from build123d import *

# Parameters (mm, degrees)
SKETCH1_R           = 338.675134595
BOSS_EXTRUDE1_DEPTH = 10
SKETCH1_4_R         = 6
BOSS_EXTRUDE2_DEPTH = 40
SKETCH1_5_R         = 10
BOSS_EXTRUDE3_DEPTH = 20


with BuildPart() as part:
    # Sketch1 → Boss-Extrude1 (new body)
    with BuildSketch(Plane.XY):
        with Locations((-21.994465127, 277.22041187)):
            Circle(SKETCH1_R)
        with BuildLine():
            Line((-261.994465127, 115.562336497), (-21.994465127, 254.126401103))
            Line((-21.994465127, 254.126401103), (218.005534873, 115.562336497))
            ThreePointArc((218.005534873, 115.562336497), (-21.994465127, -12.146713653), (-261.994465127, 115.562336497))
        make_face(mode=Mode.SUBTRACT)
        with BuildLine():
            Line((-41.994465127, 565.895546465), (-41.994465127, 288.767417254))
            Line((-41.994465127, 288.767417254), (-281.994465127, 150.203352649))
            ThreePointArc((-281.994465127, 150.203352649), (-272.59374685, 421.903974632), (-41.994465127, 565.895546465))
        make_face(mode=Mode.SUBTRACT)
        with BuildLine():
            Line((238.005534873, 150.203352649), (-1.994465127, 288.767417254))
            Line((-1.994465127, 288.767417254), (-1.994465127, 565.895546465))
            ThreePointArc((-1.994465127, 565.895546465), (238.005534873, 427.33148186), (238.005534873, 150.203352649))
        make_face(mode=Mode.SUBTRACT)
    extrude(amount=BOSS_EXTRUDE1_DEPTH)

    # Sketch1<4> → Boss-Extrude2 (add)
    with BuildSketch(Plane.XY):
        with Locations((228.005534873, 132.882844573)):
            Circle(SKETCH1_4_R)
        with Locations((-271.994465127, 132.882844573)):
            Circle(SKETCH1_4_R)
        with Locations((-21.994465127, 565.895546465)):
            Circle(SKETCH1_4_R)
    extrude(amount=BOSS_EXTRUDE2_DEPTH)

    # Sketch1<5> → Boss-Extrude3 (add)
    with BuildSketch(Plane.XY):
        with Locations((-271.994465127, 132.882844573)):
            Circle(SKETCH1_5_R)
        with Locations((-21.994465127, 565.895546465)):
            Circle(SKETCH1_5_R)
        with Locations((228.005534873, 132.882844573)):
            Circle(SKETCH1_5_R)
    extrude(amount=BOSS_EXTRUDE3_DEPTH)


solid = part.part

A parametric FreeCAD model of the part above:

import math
import FreeCAD as App
import Part
import Sketcher
from FreeCAD import Vector
Q = App.Units.Quantity

doc = App.newDocument("Part")
body = doc.addObject("PartDesign::Body", "Body")

# Sketch on XY plane
sketch1 = doc.addObject("Sketcher::SketchObject", "Sketch")
body.addObject(sketch1)
sketch1.AttachmentSupport = (doc.XY_Plane, [""])
sketch1.MapMode = "FlatFace"
sketch1.addGeometry(Part.Circle(Vector(-21.994465, 277.220412, 0), Vector(0, 0, 1), 338.675135), False)
sketch1.addGeometry(Part.ArcOfCircle(Part.Circle(Vector(-21.994465, 277.220412, 0), Vector(0, 0, 1), 289.367126), math.radians(-146.036765), math.radians(-33.963235)), False)
sketch1.addGeometry(Part.LineSegment(Vector(-261.994465, 115.562336, 0), Vector(-21.994465, 254.126401, 0)), False)
sketch1.addGeometry(Part.LineSegment(Vector(-21.994465, 254.126401, 0), Vector(218.005535, 115.562336, 0)), False)
sketch1.addGeometry(Part.ArcOfCircle(Part.Circle(Vector(-21.994465, 277.220412, 0), Vector(0, 0, 1), 289.367126), math.radians(93.963235), math.radians(206.036765)), False)
sketch1.addGeometry(Part.LineSegment(Vector(-41.994465, 565.895546, 0), Vector(-41.994465, 288.767417, 0)), False)
sketch1.addGeometry(Part.LineSegment(Vector(-41.994465, 288.767417, 0), Vector(-281.994465, 150.203353, 0)), False)
sketch1.addGeometry(Part.ArcOfCircle(Part.Circle(Vector(-1.994465, 288.767417, 0), Vector(0, 0, 1), 277.128129), math.radians(-30), math.radians(90)), False)
sketch1.addGeometry(Part.LineSegment(Vector(238.005535, 150.203353, 0), Vector(-1.994465, 288.767417, 0)), False)
sketch1.addGeometry(Part.LineSegment(Vector(-1.994465, 288.767417, 0), Vector(-1.994465, 565.895546, 0)), False)
sketch1.addConstraint(Sketcher.Constraint("Coincident", 1, 1, 2, 1))
sketch1.addConstraint(Sketcher.Constraint("Coincident", 2, 2, 3, 1))
sketch1.addConstraint(Sketcher.Constraint("Coincident", 3, 2, 1, 2))
sketch1.addConstraint(Sketcher.Constraint("Coincident", 4, 1, 5, 1))
sketch1.addConstraint(Sketcher.Constraint("Coincident", 5, 2, 6, 1))
sketch1.addConstraint(Sketcher.Constraint("Coincident", 6, 2, 4, 2))
sketch1.addConstraint(Sketcher.Constraint("Coincident", 7, 1, 8, 1))
sketch1.addConstraint(Sketcher.Constraint("Coincident", 8, 2, 9, 1))
sketch1.addConstraint(Sketcher.Constraint("Coincident", 9, 2, 7, 2))
sketch1.addConstraint(Sketcher.Constraint("Vertical", 5))
sketch1.addConstraint(Sketcher.Constraint("Vertical", 9))
sketch1.addConstraint(Sketcher.Constraint("Coincident", 1, 3, 0, 3))
sketch1.addConstraint(Sketcher.Constraint("Coincident", 4, 3, 0, 3))
sketch1.addConstraint(Sketcher.Constraint("Coincident", 8, 2, 7, 3))
sketch1.addConstraint(Sketcher.Constraint("Equal", 1, 4))
sketch1.addConstraint(Sketcher.Constraint("Parallel", 2, 6))
sketch1.addConstraint(Sketcher.Constraint("Parallel", 3, 8))
sketch1.addConstraint(Sketcher.Constraint("Horizontal", 1, 1, 3, 2))
sketch1.addConstraint(Sketcher.Constraint("Horizontal", 7, 3, 5, 2))
sketch1.addConstraint(Sketcher.Constraint("Horizontal", 6, 2, 7, 1))
sketch1.addConstraint(Sketcher.Constraint("Horizontal", 4, 1, 9, 2))
sketch1.addConstraint(Sketcher.Constraint("Vertical", 4, 3, 2, 2))
sketch1.addConstraint(Sketcher.Constraint("Equal", 3, 6))
sketch1.addConstraint(Sketcher.Constraint("Angle", 2, Q("30 deg")))
sketch1.addConstraint(Sketcher.Constraint("DistanceX", 0, 3, 7, 3, Q("20 mm")))
sketch1.addConstraint(Sketcher.Constraint("DistanceX", 2, 2, 3, 2, Q("240 mm")))
sketch1.addConstraint(Sketcher.Constraint("DistanceX", 5, 2, 4, 3, Q("20 mm")))
sketch1.addConstraint(Sketcher.Constraint("Diameter", 0, Q("677.350269 mm")))
sketch1.addConstraint(Sketcher.Constraint("DistanceY", -1, 1, 2, 2, Q("254.126401 mm")))
sketch1.addConstraint(Sketcher.Constraint("DistanceX", 0, 3, -1, 1, Q("21.994465 mm")))
pad1 = doc.addObject("PartDesign::Pad", "Pad")
body.addObject(pad1)
pad1.Profile = sketch1
pad1.Length = 10

# Sketch on XY plane
sketch2 = doc.addObject("Sketcher::SketchObject", "Sketch001")
body.addObject(sketch2)
sketch2.AttachmentSupport = (doc.XY_Plane, [""])
sketch2.MapMode = "FlatFace"
sketch2.addGeometry(Part.Circle(Vector(228.005535, 132.882845, 0), Vector(0, 0, 1), 6), False)
sketch2.addGeometry(Part.Circle(Vector(-271.994465, 132.882845, 0), Vector(0, 0, 1), 6), False)
sketch2.addGeometry(Part.Circle(Vector(-21.994465, 565.895546, 0), Vector(0, 0, 1), 6), False)
sketch2.addConstraint(Sketcher.Constraint("Equal", 0, 1))
sketch2.addConstraint(Sketcher.Constraint("Equal", 1, 2))
sketch2.addConstraint(Sketcher.Constraint("Horizontal", 0, 3, 1, 3))
sketch2.addConstraint(Sketcher.Constraint("Diameter", 0, Q("12 mm")))
sketch2.addConstraint(Sketcher.Constraint("DistanceX", 1, 3, 0, 3, Q("500 mm")))
sketch2.addConstraint(Sketcher.Constraint("DistanceX", 2, 3, 0, 3, Q("250 mm")))
sketch2.addConstraint(Sketcher.Constraint("DistanceY", 0, 3, 2, 3, Q("433.012702 mm")))
sketch2.addConstraint(Sketcher.Constraint("DistanceX", -1, 1, 0, 3, Q("228.005535 mm")))
sketch2.addConstraint(Sketcher.Constraint("DistanceY", -1, 1, 0, 3, Q("132.882845 mm")))
pad2 = doc.addObject("PartDesign::Pad", "Pad001")
body.addObject(pad2)
pad2.Profile = sketch2
pad2.Length = 40

# Sketch on XY plane
sketch3 = doc.addObject("Sketcher::SketchObject", "Sketch002")
body.addObject(sketch3)
sketch3.AttachmentSupport = (doc.XY_Plane, [""])
sketch3.MapMode = "FlatFace"
sketch3.addGeometry(Part.Circle(Vector(-271.994465, 132.882845, 0), Vector(0, 0, 1), 10), False)
sketch3.addGeometry(Part.Circle(Vector(-21.994465, 565.895546, 0), Vector(0, 0, 1), 10), False)
sketch3.addGeometry(Part.Circle(Vector(228.005535, 132.882845, 0), Vector(0, 0, 1), 10), False)
sketch3.addConstraint(Sketcher.Constraint("Equal", 0, 1))
sketch3.addConstraint(Sketcher.Constraint("Equal", 1, 2))
sketch3.addConstraint(Sketcher.Constraint("Horizontal", 0, 3, 2, 3))
sketch3.addConstraint(Sketcher.Constraint("Diameter", 0, Q("20 mm")))
sketch3.addConstraint(Sketcher.Constraint("DistanceX", 0, 3, 1, 3, Q("250 mm")))
sketch3.addConstraint(Sketcher.Constraint("DistanceX", 1, 3, 2, 3, Q("250 mm")))
sketch3.addConstraint(Sketcher.Constraint("DistanceY", 0, 3, 1, 3, Q("433.012702 mm")))
sketch3.addConstraint(Sketcher.Constraint("DistanceX", 0, 3, -1, 1, Q("271.994465 mm")))
sketch3.addConstraint(Sketcher.Constraint("DistanceY", -1, 1, 0, 3, Q("132.882845 mm")))
pad3 = doc.addObject("PartDesign::Pad", "Pad002")
body.addObject(pad3)
pad3.Profile = sketch3
pad3.Length = 20

doc.recompute()
